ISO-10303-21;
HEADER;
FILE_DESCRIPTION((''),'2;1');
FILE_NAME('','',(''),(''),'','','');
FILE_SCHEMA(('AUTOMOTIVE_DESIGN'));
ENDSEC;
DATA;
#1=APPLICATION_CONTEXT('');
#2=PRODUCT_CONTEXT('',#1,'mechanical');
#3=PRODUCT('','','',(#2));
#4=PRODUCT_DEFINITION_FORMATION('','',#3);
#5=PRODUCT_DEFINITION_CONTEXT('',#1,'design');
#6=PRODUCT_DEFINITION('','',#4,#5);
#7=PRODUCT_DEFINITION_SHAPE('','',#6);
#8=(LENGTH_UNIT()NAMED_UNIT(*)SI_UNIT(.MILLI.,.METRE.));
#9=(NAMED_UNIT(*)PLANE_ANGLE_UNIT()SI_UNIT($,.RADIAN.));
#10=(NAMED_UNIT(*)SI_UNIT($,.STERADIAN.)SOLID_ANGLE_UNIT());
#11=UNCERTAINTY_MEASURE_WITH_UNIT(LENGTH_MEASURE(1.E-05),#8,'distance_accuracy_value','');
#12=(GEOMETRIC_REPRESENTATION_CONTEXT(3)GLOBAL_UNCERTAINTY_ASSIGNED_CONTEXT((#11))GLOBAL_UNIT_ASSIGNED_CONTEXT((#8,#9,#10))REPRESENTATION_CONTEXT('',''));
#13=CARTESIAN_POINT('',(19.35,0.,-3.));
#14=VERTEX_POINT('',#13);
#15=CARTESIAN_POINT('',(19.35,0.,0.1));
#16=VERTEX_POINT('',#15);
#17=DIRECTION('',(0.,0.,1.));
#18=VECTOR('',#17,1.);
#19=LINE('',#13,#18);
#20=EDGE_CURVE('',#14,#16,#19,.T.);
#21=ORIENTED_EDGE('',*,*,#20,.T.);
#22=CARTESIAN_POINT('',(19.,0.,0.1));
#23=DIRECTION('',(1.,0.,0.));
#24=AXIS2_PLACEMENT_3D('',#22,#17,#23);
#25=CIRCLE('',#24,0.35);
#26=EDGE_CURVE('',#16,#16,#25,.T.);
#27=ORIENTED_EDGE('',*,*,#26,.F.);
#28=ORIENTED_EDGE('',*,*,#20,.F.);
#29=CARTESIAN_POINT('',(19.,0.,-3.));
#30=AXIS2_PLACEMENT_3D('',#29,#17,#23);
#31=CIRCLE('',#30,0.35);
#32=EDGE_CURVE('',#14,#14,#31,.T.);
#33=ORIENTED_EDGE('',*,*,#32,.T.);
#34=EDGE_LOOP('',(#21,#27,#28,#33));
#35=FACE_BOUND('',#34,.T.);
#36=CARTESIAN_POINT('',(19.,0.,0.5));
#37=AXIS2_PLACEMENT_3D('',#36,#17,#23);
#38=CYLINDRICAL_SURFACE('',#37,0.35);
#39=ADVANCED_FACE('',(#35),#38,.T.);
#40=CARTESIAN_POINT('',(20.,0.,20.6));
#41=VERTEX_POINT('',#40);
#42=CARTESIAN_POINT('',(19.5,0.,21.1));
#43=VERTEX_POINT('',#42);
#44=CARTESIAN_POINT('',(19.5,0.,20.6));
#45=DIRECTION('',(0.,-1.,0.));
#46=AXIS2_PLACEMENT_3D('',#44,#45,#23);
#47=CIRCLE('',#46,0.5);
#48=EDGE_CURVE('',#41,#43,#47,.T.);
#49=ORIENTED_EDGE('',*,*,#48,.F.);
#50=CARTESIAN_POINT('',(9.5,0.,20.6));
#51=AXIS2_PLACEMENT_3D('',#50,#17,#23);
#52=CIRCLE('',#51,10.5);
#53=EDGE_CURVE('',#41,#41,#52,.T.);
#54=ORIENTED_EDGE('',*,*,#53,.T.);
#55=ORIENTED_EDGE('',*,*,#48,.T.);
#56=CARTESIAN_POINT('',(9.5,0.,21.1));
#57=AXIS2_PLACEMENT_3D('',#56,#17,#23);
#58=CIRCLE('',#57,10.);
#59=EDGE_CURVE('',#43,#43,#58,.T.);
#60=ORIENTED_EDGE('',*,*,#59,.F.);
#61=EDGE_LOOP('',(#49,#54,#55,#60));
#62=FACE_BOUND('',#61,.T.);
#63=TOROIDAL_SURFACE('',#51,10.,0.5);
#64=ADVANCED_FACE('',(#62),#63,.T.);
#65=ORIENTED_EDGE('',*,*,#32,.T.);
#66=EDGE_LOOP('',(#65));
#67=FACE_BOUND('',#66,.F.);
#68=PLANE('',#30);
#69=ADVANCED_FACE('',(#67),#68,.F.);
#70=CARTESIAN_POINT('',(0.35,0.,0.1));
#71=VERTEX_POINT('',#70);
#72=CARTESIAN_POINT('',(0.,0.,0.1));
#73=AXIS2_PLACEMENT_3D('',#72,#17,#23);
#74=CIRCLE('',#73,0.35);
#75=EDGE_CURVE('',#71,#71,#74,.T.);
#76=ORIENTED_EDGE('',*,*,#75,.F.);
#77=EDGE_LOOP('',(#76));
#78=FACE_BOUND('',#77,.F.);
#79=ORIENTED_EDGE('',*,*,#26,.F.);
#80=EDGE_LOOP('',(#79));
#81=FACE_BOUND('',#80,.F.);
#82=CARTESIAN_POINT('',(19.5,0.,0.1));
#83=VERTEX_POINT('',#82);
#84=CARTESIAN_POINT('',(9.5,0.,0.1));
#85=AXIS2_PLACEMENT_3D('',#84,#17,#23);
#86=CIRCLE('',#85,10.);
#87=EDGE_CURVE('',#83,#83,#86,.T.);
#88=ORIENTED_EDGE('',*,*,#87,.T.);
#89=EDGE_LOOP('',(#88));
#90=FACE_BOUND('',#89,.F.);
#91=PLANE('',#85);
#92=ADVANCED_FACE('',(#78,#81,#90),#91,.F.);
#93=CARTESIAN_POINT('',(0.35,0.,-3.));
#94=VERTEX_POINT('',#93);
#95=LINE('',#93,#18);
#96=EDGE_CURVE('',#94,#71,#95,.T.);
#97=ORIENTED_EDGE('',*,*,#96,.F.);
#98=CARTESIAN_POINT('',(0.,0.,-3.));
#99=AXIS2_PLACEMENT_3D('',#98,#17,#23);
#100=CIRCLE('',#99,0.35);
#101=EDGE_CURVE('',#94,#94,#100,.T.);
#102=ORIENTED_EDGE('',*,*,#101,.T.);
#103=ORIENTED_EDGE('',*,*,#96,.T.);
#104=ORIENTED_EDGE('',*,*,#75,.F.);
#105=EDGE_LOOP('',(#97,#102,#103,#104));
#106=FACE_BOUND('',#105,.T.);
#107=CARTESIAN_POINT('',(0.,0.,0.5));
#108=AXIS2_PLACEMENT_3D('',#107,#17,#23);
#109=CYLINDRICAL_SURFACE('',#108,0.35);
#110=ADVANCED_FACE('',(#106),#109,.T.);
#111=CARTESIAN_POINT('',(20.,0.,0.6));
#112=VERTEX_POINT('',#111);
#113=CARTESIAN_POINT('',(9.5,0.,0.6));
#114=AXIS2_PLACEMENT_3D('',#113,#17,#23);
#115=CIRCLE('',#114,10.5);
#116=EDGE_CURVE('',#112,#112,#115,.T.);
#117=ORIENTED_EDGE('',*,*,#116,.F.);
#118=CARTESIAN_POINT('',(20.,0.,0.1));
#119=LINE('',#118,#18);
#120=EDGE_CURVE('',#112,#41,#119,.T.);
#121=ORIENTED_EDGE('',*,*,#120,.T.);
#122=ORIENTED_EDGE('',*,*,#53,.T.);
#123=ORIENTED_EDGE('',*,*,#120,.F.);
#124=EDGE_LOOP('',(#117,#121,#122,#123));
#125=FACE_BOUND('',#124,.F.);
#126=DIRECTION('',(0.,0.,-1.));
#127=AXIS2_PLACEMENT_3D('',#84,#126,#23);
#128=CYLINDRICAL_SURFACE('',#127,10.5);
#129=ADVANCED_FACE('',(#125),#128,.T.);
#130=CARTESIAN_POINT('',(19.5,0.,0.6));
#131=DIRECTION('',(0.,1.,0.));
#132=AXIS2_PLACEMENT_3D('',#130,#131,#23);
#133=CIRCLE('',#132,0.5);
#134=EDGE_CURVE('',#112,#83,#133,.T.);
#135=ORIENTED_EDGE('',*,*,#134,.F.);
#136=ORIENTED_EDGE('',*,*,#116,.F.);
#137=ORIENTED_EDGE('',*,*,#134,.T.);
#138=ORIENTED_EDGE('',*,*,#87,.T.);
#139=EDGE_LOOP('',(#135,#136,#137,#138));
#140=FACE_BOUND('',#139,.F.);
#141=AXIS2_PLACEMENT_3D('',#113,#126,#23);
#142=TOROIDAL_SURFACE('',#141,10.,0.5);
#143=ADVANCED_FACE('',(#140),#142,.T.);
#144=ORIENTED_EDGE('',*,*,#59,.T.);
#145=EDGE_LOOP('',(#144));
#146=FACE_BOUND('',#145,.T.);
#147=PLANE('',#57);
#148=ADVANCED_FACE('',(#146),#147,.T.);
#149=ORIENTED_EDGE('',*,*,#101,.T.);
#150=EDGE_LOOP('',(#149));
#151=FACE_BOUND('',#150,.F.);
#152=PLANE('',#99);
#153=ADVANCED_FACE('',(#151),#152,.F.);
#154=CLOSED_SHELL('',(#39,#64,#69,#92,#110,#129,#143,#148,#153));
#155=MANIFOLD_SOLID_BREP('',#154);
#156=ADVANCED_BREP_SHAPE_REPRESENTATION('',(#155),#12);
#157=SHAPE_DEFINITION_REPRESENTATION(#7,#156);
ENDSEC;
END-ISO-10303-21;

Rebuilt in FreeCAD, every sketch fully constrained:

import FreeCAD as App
import Part
import Sketcher
Q = App.Units.Quantity


def edges_at(feature, points):
    """Names of the edges that pass closest to the given points."""
    edges = feature.Shape.Edges
    near = lambda p: min(range(len(edges)), key=lambda i: edges[i].distToShape(Part.Vertex(*p))[0])
    return sorted({f"Edge{near(p) + 1}" for p in points})

doc = App.newDocument("Part")
body = doc.addObject("PartDesign::Body", "Body")
body.AllowCompound = True

# Sketch on XY plane
sketch1 = body.newObject("Sketcher::SketchObject", "Sketch")
sketch1.AttachmentSupport = (doc.getObject("XY_Plane"), [""])
sketch1.MapMode = "FlatFace"
sketch1.AttachmentOffset = App.Placement(App.Vector(0, 0, 0.5), App.Rotation())
sketch1.addGeometry(Part.Circle(App.Vector(0, 0, 0), App.Vector(0, 0, 1), 0.35), False)
sketch1.addGeometry(Part.Circle(App.Vector(19, 0, 0), App.Vector(0, 0, 1), 0.35), False)
sketch1.addConstraint(Sketcher.Constraint("Coincident", 0, 3, -1, 1))
sketch1.addConstraint(Sketcher.Constraint("Equal", 0, 1))
sketch1.addConstraint(Sketcher.Constraint("PointOnObject", 1, 3, -1))
sketch1.addConstraint(Sketcher.Constraint("Diameter", 0, Q("0.7 mm")))
sketch1.addConstraint(Sketcher.Constraint("DistanceX", -1, 1, 1, 3, Q("19 mm")))
pad1 = body.newObject("PartDesign::Pad", "Pad")
pad1.Profile = sketch1
pad1.Type = "TwoLengths"
pad1.Length = 10.5
pad1.Length2 = 3.5
body2 = doc.addObject("PartDesign::Body", "Body001")

# Sketch on XY plane
sketch2 = body2.newObject("Sketcher::SketchObject", "Sketch001")
sketch2.AttachmentSupport = (doc.getObject("XY_Plane001"), [""])
sketch2.MapMode = "FlatFace"
sketch2.AttachmentOffset = App.Placement(App.Vector(0, 0, 0.1), App.Rotation())
sketch2.addGeometry(Part.Circle(App.Vector(10, 0, 0), App.Vector(0, 0, 1), 10), False)
sketch2.addConstraint(Sketcher.Constraint("PointOnObject", 0, 3, -1))
sketch2.addConstraint(Sketcher.Constraint("Diameter", 0, Q("21 mm")))
sketch2.addConstraint(Sketcher.Constraint("DistanceX", -1, 1, 0, 3, Q("9.5 mm")))
pad2 = body2.newObject("PartDesign::Pad", "Pad001")
pad2.Profile = sketch2
pad2.Length = 21
doc.recompute()

fillet = body2.newObject("PartDesign::Fillet", "Fillet")
fillet.Base = (pad2, edges_at(pad2, [(-1, 0, 0.1), (-1, 0, 21.1)]))
fillet.Radius = 0.5
doc.recompute()

boolean = body2.newObject("PartDesign::Boolean", "Boolean")
boolean.Type = "Fuse"
boolean.addObjects([body])

doc.recompute()
